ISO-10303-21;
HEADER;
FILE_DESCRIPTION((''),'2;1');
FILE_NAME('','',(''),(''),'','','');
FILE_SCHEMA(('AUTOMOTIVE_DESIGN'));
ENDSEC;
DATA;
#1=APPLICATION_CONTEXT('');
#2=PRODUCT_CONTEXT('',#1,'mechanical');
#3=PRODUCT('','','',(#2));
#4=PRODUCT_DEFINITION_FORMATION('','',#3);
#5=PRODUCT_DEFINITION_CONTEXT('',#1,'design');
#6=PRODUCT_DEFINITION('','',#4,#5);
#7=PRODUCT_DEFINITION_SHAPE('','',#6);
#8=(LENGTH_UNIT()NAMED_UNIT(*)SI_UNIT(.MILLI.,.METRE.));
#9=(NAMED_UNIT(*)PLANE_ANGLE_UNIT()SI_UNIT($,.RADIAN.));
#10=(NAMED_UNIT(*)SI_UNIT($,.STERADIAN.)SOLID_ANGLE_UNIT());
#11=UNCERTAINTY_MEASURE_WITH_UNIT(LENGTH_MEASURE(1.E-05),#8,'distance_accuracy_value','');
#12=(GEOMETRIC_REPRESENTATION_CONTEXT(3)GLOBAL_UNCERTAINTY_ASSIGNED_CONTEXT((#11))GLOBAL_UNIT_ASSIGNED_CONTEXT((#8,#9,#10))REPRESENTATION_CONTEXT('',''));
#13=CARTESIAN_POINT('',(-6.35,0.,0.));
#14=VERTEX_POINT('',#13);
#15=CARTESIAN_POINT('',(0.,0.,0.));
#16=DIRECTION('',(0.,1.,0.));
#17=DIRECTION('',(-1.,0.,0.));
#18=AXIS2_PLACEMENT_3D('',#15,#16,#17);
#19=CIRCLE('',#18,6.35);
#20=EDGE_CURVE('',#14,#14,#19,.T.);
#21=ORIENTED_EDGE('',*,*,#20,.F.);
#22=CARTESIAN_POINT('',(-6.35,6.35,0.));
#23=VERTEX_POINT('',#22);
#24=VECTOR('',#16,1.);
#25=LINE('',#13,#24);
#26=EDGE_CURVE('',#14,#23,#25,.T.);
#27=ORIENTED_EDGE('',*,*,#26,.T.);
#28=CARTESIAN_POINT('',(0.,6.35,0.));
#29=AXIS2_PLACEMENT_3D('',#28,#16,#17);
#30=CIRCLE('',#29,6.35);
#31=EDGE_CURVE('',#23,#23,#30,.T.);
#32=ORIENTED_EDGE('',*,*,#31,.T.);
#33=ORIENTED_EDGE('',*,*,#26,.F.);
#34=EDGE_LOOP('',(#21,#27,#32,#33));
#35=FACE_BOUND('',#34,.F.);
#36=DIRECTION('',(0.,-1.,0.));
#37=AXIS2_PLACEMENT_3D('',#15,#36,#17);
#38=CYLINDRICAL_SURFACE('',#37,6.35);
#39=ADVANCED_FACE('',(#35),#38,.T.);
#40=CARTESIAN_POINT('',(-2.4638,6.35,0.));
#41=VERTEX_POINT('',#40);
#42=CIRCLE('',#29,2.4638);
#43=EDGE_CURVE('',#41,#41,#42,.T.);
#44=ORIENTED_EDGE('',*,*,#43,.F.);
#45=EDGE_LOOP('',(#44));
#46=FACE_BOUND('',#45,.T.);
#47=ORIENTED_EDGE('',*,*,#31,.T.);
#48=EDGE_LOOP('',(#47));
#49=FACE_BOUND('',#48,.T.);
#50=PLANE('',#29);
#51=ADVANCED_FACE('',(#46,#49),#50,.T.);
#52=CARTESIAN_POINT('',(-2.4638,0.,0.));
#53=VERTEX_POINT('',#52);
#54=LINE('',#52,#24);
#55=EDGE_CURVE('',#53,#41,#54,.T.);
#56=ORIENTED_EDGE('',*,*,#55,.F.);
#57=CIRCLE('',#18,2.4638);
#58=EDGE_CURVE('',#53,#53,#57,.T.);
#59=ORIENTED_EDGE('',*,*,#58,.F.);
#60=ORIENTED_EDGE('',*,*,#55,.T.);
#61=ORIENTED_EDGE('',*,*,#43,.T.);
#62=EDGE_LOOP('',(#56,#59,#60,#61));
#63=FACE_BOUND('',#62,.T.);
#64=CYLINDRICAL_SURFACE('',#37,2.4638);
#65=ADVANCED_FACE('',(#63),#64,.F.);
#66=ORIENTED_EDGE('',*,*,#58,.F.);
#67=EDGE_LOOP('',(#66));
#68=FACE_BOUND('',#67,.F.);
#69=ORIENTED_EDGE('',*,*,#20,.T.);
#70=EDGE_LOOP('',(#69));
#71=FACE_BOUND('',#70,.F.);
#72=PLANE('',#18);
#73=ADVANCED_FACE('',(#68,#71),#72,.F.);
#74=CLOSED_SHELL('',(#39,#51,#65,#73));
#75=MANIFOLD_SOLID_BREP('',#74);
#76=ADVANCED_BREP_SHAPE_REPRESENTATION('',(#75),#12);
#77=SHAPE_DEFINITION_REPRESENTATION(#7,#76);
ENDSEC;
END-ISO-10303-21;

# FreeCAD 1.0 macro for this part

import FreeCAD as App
import Part
import Sketcher

V = App.Vector
Q = App.Units.Quantity

doc = App.newDocument("Part")
body = doc.addObject("PartDesign::Body", "Body")

# Sketch on XZ plane
sketch1 = body.newObject("Sketcher::SketchObject", "Sketch")
sketch1.AttachmentSupport = (doc.getObject("XZ_Plane"), [""])
sketch1.MapMode = "FlatFace"
sketch1.addGeometry([
    Part.Circle(V(0, 0, 0), V(0, 0, 1), 6.3),
    Part.Circle(V(0, 0, 0), V(0, 0, 1), 2.5),
], False)
sketch1.addConstraint([
    Sketcher.Constraint("Coincident", 0, 3, -1, 1),
    Sketcher.Constraint("Coincident", 1, 3, -1, 1),
    Sketcher.Constraint("Diameter", 0, Q("0.5 in")),
    Sketcher.Constraint("Diameter", 1, Q("0.194 in")),
])
pad1 = body.newObject("PartDesign::Pad", "Pad")
pad1.Profile = sketch1
pad1.Length = Q("0.25 in")
pad1.Reversed = True

doc.recompute()
